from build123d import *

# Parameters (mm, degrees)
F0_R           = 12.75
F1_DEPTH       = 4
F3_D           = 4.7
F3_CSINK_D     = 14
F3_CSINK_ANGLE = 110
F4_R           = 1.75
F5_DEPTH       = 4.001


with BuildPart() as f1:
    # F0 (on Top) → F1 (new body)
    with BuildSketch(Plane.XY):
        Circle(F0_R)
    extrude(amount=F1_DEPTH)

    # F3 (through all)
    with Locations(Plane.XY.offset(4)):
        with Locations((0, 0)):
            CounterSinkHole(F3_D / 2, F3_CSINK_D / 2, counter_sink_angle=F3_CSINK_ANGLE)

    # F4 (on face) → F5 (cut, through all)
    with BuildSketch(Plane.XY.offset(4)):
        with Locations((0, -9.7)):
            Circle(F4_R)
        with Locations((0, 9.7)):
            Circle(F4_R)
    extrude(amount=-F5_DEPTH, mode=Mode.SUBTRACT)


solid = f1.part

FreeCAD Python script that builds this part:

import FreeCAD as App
import Part
import Sketcher
Q = App.Units.Quantity

doc = App.newDocument("Part")
body = doc.addObject("PartDesign::Body", "Body")

# Sketch on XY plane
sketch1 = doc.addObject("Sketcher::SketchObject", "Sketch")
body.addObject(sketch1)
sketch1.AttachmentSupport = (doc.XY_Plane, [""])
sketch1.MapMode = "FlatFace"
sketch1.addGeometry(Part.Circle(App.Vector(0, 0, 0), App.Vector(0, 0, 1), 12.75), False)
sketch1.addConstraint([
    Sketcher.Constraint("Coincident", 0, 3, -1, 1),
    Sketcher.Constraint("Diameter", 0, Q("25.5 mm")),
])
pad1 = doc.addObject("PartDesign::Pad", "Pad")
body.addObject(pad1)
pad1.Profile = sketch1
pad1.Length = 4

# Sketch on XY plane
sketch2 = doc.addObject("Sketcher::SketchObject", "Sketch001")
body.addObject(sketch2)
sketch2.AttachmentSupport = (doc.XY_Plane, [""])
sketch2.MapMode = "FlatFace"
sketch2.AttachmentOffset = App.Placement(App.Vector(0, 0, 4), App.Rotation())
sketch2.addGeometry(Part.Circle(App.Vector(0, 0, 0), App.Vector(0, 0, 1), 2.35), False)
sketch2.addConstraint([
    Sketcher.Constraint("Coincident", 0, 3, -1, 1),
    Sketcher.Constraint("Diameter", 0, Q("4.7 mm")),
])
doc.recompute()
hole = doc.addObject("PartDesign::Hole", "Hole")
body.addObject(hole)
hole.Profile = sketch2
hole.ThreadType = "None"
hole.Diameter = 4.7
hole.DepthType = "ThroughAll"
hole.HoleCutType = "Countersink"
hole.HoleCutDiameter = 14
hole.HoleCutCountersinkAngle = 110

# Sketch on XY plane
sketch3 = doc.addObject("Sketcher::SketchObject", "Sketch002")
body.addObject(sketch3)
sketch3.AttachmentSupport = (doc.XY_Plane, [""])
sketch3.MapMode = "FlatFace"
sketch3.AttachmentOffset = App.Placement(App.Vector(0, 0, 4), App.Rotation())
sketch3.addGeometry([
    Part.Circle(App.Vector(0, -9.7, 0), App.Vector(0, 0, 1), 1.75),
    Part.Circle(App.Vector(0, 9.7, 0), App.Vector(0, 0, 1), 1.75),
], False)
sketch3.addConstraint([
    Sketcher.Constraint("Equal", 0, 1),
    Sketcher.Constraint("Symmetric", 0, 3, 1, 3, -1, 1),
    Sketcher.Constraint("PointOnObject", 0, 3, -2),
    Sketcher.Constraint("Diameter", 0, Q("3.5 mm")),
    Sketcher.Constraint("DistanceY", 0, 3, -1, 1, Q("9.7 mm")),
])
pocket1 = doc.addObject("PartDesign::Pocket", "Pocket")
body.addObject(pocket1)
pocket1.Profile = sketch3
pocket1.Type = "ThroughAll"

doc.recompute()
